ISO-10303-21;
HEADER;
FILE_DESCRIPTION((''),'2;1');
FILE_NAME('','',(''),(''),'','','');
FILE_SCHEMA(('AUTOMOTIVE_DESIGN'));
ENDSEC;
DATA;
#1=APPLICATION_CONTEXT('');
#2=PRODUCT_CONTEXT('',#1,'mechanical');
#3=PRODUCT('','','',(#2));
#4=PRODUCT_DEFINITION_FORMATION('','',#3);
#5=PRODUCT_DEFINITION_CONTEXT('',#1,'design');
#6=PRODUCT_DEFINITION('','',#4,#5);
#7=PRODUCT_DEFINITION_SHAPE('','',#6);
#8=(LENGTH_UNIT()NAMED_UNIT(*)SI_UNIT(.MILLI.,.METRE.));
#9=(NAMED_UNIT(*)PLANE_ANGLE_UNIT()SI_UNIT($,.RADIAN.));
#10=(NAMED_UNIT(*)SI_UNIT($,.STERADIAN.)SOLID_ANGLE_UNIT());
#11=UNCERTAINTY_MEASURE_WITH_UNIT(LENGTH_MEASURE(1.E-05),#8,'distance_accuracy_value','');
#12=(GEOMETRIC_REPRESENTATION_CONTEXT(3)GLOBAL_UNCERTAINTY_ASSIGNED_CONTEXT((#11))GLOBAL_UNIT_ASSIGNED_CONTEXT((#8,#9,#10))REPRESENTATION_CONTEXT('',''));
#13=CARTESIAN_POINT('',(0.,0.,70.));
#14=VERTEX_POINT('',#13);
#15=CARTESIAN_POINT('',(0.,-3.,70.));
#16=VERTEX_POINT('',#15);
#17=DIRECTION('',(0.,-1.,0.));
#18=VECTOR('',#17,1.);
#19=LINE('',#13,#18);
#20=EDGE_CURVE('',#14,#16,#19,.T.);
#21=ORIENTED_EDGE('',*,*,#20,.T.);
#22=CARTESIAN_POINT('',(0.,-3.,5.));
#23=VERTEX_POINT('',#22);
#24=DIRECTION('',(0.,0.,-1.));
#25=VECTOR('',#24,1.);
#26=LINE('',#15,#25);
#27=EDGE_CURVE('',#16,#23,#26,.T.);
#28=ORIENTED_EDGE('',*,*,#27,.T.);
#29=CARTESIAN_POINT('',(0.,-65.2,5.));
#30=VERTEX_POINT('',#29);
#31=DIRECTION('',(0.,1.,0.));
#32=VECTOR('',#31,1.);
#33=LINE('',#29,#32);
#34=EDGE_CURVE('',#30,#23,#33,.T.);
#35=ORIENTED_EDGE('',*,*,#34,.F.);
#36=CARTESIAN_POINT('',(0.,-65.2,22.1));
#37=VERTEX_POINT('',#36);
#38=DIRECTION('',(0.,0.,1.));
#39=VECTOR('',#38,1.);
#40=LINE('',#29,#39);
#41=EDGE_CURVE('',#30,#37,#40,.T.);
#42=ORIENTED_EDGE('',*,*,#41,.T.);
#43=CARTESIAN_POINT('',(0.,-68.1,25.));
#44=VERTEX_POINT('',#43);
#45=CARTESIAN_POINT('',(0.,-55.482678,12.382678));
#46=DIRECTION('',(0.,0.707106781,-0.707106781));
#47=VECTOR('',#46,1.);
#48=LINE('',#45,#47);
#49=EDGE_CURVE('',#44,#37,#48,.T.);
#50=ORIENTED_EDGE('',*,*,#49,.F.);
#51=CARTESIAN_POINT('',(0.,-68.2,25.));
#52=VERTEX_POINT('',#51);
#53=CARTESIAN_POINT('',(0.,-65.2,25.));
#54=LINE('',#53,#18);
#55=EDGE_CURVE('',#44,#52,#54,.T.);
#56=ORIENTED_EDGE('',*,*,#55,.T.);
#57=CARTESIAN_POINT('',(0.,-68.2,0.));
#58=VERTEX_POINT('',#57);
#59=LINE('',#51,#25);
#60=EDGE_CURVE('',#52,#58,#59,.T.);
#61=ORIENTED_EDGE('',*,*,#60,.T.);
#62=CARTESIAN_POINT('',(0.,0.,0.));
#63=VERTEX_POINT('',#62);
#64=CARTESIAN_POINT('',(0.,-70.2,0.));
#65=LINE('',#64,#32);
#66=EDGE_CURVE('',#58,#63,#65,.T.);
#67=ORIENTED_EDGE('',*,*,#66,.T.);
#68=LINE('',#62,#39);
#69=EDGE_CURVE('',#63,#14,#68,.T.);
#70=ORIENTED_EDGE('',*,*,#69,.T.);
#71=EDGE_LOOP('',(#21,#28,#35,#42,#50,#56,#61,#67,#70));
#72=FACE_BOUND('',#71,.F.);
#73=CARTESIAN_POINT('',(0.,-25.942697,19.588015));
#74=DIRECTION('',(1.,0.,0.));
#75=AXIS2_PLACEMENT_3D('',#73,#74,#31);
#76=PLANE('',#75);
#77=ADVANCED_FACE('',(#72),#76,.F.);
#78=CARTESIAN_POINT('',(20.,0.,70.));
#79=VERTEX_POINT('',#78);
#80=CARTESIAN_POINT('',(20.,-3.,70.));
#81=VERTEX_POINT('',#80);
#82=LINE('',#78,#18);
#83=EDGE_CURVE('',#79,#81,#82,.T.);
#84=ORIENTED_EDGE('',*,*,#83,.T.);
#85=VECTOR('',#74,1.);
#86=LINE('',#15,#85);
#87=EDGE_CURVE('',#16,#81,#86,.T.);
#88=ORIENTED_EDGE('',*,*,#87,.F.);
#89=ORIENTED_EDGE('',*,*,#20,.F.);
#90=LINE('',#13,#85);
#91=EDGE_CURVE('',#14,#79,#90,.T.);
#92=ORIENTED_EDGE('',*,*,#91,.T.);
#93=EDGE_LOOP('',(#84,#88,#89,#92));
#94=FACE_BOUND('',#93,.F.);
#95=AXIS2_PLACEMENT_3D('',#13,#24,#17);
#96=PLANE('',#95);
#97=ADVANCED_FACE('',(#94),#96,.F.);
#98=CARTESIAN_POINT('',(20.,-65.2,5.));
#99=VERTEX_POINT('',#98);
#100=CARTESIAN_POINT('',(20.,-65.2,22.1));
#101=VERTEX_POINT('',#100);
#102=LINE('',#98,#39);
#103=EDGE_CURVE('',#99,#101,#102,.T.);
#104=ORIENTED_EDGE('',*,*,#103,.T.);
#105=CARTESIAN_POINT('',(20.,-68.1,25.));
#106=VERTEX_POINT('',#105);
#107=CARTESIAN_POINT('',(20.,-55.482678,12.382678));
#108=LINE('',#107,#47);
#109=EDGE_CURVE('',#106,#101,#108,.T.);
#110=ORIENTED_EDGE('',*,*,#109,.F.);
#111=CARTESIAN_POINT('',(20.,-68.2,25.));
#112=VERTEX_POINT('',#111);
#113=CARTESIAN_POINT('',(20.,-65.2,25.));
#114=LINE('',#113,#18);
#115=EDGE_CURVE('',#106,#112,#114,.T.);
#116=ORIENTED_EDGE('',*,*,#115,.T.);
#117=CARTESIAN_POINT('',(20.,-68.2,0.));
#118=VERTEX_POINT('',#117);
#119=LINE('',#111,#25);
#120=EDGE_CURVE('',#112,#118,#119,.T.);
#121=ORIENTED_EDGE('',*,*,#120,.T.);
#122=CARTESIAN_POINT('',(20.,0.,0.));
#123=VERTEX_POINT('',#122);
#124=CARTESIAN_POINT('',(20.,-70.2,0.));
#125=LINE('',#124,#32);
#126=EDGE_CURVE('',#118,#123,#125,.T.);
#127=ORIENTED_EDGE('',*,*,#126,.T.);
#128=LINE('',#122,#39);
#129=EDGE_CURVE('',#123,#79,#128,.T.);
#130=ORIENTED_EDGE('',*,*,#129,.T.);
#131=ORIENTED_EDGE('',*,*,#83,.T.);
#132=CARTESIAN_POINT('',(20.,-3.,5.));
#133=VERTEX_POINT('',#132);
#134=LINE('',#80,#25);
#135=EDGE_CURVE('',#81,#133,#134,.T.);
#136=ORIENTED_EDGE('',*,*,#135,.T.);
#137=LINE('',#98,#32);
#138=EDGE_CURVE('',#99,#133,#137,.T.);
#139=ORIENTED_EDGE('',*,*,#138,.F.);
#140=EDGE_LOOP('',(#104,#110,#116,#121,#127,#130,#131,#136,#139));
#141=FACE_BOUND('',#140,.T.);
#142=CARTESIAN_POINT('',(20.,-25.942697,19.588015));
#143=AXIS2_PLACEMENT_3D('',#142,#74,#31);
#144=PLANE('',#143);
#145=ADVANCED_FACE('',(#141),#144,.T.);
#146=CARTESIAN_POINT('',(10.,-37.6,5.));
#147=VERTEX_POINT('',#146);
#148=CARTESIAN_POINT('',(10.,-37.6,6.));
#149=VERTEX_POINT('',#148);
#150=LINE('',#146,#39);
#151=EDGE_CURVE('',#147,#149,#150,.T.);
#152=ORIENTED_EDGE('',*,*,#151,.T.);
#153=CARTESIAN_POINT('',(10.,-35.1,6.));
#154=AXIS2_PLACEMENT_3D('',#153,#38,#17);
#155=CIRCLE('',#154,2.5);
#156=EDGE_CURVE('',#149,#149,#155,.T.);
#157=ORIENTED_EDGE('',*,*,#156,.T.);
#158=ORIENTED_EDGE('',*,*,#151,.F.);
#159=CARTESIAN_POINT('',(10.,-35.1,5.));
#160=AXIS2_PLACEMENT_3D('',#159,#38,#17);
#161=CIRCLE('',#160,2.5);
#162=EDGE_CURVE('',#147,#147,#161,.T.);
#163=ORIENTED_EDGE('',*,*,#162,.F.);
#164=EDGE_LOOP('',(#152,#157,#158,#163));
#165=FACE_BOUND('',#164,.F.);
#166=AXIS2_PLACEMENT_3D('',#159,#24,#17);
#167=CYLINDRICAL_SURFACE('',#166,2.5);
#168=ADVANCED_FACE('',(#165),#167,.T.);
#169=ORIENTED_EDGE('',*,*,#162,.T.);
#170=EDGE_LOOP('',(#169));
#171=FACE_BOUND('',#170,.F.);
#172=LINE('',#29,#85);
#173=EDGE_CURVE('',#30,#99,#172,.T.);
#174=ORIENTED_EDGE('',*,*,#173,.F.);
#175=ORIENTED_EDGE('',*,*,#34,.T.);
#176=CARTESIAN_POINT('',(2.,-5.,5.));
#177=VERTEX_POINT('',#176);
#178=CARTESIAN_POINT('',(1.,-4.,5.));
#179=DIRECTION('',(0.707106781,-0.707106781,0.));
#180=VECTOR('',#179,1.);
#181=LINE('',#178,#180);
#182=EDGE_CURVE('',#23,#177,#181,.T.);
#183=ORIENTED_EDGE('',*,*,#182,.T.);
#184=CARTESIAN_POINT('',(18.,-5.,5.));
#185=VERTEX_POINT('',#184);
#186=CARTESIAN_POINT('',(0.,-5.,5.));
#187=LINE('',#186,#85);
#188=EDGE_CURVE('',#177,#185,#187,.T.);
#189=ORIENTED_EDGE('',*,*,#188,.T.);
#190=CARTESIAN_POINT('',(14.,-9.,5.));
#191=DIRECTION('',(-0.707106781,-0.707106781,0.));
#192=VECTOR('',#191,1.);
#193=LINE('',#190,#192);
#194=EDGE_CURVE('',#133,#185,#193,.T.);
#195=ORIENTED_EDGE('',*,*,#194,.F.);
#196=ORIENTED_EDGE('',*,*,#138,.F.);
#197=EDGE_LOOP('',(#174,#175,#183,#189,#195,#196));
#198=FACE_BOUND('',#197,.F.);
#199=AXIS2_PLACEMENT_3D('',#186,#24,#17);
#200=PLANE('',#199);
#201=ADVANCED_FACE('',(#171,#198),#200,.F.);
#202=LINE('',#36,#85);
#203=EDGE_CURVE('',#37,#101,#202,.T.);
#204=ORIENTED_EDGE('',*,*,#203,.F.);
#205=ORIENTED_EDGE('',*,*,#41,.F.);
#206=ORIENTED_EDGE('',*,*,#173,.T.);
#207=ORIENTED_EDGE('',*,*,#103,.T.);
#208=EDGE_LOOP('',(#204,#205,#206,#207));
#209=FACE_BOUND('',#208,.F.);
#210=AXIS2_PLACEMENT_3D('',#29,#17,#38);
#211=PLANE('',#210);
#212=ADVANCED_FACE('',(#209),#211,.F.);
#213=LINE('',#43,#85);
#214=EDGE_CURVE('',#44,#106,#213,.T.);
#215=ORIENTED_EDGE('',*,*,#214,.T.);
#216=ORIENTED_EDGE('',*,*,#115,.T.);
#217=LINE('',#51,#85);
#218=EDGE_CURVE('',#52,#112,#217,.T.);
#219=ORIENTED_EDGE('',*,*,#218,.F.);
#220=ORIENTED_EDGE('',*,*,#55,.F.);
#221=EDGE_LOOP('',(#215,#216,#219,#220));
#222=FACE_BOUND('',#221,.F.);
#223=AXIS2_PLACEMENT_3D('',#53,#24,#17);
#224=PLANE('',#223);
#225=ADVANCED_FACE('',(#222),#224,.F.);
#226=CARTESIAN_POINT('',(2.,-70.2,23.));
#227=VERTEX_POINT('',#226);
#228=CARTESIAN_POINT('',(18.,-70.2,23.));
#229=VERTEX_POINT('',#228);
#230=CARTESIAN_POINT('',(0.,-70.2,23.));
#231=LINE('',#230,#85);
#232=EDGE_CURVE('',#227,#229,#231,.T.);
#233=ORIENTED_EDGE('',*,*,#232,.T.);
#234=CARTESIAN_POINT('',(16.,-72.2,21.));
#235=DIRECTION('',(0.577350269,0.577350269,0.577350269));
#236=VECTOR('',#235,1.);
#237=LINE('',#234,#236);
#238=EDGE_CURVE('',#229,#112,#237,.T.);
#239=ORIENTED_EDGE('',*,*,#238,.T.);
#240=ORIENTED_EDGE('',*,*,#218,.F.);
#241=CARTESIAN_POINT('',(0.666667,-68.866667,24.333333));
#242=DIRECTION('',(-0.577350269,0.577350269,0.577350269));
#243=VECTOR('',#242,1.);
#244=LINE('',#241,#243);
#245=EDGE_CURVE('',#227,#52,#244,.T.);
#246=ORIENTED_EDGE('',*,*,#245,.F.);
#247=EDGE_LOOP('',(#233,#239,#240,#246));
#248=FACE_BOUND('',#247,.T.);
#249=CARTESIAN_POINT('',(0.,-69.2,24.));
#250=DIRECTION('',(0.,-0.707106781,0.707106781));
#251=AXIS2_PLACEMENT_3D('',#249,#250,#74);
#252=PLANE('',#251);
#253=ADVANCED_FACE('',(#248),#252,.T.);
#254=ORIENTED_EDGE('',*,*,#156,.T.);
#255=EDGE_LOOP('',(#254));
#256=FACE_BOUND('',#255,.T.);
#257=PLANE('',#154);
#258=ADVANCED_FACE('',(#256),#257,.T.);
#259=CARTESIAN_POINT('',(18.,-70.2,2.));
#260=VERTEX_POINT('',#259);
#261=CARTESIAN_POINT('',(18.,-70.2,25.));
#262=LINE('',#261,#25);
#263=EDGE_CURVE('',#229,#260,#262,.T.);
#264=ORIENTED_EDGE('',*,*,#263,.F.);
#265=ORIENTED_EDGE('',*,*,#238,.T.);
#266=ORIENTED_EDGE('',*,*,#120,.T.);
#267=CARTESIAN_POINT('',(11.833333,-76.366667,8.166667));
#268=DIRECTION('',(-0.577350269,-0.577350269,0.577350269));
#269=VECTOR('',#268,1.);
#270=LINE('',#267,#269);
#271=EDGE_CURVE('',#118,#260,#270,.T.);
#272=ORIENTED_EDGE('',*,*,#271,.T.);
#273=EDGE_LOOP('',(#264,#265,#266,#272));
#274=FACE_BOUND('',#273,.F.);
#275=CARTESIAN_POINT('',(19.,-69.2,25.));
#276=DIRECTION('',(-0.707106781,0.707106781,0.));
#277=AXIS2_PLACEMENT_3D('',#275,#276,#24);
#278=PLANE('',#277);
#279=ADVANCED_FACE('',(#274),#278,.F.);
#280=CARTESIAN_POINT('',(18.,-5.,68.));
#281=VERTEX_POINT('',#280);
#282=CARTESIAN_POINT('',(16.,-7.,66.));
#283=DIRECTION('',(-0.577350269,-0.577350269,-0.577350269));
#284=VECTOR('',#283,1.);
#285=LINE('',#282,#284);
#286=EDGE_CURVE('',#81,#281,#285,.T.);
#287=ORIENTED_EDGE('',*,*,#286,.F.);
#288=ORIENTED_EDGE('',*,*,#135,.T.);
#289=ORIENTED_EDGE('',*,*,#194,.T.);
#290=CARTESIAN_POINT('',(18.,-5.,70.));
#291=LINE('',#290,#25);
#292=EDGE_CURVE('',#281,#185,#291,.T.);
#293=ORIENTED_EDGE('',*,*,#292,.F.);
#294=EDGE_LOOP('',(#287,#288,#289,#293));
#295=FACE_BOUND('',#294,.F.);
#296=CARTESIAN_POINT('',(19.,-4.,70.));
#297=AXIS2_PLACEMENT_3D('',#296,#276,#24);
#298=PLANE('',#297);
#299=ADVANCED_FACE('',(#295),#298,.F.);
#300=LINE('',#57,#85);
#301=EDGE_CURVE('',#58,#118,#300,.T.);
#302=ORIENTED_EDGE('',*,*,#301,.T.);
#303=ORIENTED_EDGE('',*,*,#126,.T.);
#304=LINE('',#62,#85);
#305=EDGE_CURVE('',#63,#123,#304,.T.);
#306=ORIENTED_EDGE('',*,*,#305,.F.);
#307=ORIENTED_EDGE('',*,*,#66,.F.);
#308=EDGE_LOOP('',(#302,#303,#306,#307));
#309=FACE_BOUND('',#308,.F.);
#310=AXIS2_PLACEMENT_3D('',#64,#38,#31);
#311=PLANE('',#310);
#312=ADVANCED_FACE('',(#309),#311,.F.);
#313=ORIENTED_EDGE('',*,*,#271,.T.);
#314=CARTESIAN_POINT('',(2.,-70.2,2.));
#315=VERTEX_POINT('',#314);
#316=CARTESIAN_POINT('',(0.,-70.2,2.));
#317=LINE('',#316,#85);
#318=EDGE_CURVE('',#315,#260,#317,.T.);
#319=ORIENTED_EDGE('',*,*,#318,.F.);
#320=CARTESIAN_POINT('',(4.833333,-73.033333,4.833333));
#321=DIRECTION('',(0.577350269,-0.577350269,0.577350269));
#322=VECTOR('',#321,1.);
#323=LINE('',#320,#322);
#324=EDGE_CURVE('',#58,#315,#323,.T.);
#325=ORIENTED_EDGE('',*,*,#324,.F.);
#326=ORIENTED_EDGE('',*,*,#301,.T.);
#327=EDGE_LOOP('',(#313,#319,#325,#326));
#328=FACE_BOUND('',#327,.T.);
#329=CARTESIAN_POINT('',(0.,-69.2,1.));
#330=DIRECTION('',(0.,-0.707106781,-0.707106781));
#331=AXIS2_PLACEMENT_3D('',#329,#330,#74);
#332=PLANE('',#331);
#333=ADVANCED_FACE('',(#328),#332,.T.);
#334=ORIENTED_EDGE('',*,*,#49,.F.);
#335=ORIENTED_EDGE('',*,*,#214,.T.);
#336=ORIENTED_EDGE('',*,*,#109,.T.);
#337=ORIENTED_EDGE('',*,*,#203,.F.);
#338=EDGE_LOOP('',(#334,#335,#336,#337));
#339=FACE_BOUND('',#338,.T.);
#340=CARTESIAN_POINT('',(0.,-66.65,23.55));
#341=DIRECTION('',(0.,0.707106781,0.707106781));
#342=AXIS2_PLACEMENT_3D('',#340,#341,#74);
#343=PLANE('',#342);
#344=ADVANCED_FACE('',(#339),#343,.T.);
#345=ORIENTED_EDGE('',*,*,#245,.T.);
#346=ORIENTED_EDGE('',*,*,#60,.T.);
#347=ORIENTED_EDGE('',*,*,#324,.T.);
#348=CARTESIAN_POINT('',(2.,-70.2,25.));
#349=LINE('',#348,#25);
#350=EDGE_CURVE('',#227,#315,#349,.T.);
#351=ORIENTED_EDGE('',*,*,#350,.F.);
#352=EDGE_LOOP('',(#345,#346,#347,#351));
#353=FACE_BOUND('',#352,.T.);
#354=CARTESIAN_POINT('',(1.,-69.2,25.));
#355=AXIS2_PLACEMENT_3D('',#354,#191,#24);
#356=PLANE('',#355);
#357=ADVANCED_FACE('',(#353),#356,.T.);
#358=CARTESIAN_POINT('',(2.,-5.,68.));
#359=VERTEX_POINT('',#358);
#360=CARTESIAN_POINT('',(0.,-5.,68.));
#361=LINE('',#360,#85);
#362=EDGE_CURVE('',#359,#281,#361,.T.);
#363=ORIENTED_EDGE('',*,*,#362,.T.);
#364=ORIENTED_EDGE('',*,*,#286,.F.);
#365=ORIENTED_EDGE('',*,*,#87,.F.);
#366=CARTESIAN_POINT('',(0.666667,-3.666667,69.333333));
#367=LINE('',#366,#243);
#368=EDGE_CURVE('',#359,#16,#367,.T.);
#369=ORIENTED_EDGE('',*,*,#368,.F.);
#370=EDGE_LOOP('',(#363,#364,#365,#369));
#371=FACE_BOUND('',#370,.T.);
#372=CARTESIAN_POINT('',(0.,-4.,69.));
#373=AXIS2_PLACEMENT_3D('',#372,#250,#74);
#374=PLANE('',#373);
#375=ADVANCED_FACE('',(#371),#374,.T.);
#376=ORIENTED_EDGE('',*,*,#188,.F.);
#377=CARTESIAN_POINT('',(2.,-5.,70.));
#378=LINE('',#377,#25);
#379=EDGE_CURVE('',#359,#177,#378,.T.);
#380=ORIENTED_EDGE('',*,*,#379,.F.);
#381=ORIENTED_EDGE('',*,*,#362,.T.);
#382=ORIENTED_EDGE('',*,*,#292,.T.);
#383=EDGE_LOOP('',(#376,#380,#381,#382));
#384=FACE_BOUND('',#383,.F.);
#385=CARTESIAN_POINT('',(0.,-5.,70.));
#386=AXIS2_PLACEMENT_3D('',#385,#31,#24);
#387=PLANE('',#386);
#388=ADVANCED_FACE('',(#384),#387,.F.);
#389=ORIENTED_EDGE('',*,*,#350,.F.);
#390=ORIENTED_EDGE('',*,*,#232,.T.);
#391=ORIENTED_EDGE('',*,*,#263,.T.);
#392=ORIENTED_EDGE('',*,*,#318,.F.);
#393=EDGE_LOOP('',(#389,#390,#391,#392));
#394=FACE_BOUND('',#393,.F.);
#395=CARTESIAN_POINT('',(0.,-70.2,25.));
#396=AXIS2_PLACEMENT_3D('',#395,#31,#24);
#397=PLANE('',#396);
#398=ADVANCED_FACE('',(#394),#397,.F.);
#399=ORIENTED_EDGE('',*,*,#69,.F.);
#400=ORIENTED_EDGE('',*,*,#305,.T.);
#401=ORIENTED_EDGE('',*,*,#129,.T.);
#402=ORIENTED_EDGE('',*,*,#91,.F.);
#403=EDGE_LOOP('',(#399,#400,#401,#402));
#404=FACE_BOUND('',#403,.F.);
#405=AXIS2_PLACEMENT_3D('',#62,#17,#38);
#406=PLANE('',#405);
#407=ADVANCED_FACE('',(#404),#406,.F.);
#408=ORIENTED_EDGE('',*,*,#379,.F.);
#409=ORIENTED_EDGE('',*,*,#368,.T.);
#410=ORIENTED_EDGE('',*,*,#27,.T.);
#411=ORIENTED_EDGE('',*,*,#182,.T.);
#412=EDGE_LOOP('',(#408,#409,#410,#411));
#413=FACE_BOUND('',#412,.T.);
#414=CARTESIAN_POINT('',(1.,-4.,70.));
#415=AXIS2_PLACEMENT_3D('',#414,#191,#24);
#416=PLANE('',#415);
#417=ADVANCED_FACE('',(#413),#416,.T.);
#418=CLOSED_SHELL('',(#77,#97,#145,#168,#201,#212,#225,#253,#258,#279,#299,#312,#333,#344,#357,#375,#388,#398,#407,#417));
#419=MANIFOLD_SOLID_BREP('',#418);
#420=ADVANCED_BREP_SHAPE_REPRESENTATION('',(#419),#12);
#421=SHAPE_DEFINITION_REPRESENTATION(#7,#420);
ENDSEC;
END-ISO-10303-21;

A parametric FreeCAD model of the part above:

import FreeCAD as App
import Part
import Sketcher
from FreeCAD import Vector


def edges_at(feature, points):
    """Names of the edges that pass closest to the given points."""
    edges = feature.Shape.Edges
    near = lambda p: min(range(len(edges)), key=lambda i: edges[i].distToShape(Part.Vertex(*p))[0])
    return sorted({f"Edge{near(p) + 1}" for p in points})

doc = App.newDocument("Part")
params = doc.addObject("Spreadsheet::Sheet", "Params")
for row, (alias, value) in enumerate([
    ("sketch1_width", "5 mm"),
    ("sketch1_height", "70 mm"),
    ("sketch1_height2", "65 mm"),
    ("sketch1_height3", "20 mm"),
    ("sketch1_width2", "60.2 mm"),
    ("pad1_length", "20 mm"),
    ("sketch2_diameter", "5 mm"),
    ("pad2_length", "1 mm"),
    ("chamfer_size", "2 mm"),
    ("chamfer2_size", "2 mm"),
    ("chamfer3_size", "2.9 mm"),
], start=1):
    params.set(f"A{row}", alias)
    params.set(f"B{row}", "=" + value)
    params.setAlias(f"B{row}", alias)

body = doc.addObject("PartDesign::Body", "Body")

sketch1 = doc.addObject("Sketcher::SketchObject", "Sketch")
body.addObject(sketch1)
sketch1.AttachmentSupport = (doc.YZ_Plane, [""])
sketch1.MapMode = "FlatFace"
sketch1.addGeometry([
    Part.LineSegment(Vector(0, 0, 0), Vector(0, 70, 0)),
    Part.LineSegment(Vector(0, 70, 0), Vector(-5, 70, 0)),
    Part.LineSegment(Vector(-5, 70, 0), Vector(-5, 5, 0)),
    Part.LineSegment(Vector(-5, 5, 0), Vector(-65, 5, 0)),
    Part.LineSegment(Vector(-65, 5, 0), Vector(-65, 25, 0)),
    Part.LineSegment(Vector(-65, 25, 0), Vector(-70, 25, 0)),
    Part.LineSegment(Vector(-70, 25, 0), Vector(-70, 0, 0)),
    Part.LineSegment(Vector(-70, 0, 0), Vector(0, 0, 0)),
], False)
sketch1.addConstraint([
    Sketcher.Constraint("Coincident", 0, 2, 1, 1),
    Sketcher.Constraint("Coincident", 1, 2, 2, 1),
    Sketcher.Constraint("Coincident", 2, 2, 3, 1),
    Sketcher.Constraint("Coincident", 3, 2, 4, 1),
    Sketcher.Constraint("Coincident", 4, 2, 5, 1),
    Sketcher.Constraint("Coincident", 5, 2, 6, 1),
    Sketcher.Constraint("Coincident", 6, 2, 7, 1),
    Sketcher.Constraint("Coincident", 7, 2, 0, 1),
    Sketcher.Constraint("Vertical", 0),
    Sketcher.Constraint("Horizontal", 1),
    Sketcher.Constraint("Vertical", 2),
    Sketcher.Constraint("Horizontal", 3),
    Sketcher.Constraint("Vertical", 4),
    Sketcher.Constraint("Horizontal", 5),
    Sketcher.Constraint("Vertical", 6),
    Sketcher.Constraint("Horizontal", 7),
    Sketcher.Constraint("Coincident", 7, 2, -1, 1),
    Sketcher.Constraint("Equal", 1, 5),
    Sketcher.Constraint("DistanceX", 1, 2, 1, 1, 5.0),
    Sketcher.Constraint("DistanceY", 0, 1, 0, 2, 70.0),
    Sketcher.Constraint("DistanceY", 2, 2, 2, 1, 65.0),
    Sketcher.Constraint("DistanceY", 4, 1, 4, 2, 20.0),
    Sketcher.Constraint("DistanceX", 3, 2, 3, 1, 60.2),
])
sketch1.setExpression("Constraints[18]", "Params.sketch1_width")
sketch1.setExpression("Constraints[19]", "Params.sketch1_height")
sketch1.setExpression("Constraints[20]", "Params.sketch1_height2")
sketch1.setExpression("Constraints[21]", "Params.sketch1_height3")
sketch1.setExpression("Constraints[22]", "Params.sketch1_width2")
pad1 = doc.addObject("PartDesign::Pad", "Pad")
body.addObject(pad1)
pad1.Profile = sketch1
pad1.setExpression("Length", "Params.pad1_length")

sketch2 = doc.addObject("Sketcher::SketchObject", "Sketch001")
body.addObject(sketch2)
sketch2.AttachmentSupport = (doc.XY_Plane, [""])
sketch2.MapMode = "FlatFace"
sketch2.AttachmentOffset = App.Placement(Vector(0, 0, 5), App.Rotation())
sketch2.addGeometry(Part.Circle(Vector(10, -35.1, 0), Vector(0, 0, 1), 2.5), False)
sketch2.addConstraint([
    Sketcher.Constraint("Diameter", 0, 5.0),
    Sketcher.Constraint("DistanceX", -1, 1, 0, 3, 10.0),
    Sketcher.Constraint("DistanceY", 0, 3, -1, 1, 35.1),
])
sketch2.setExpression("Constraints[0]", "Params.sketch2_diameter")
pad2 = doc.addObject("PartDesign::Pad", "Pad001")
body.addObject(pad2)
pad2.Profile = sketch2
pad2.setExpression("Length", "Params.pad2_length")
doc.recompute()

chamfer = doc.addObject("PartDesign::Chamfer", "Chamfer")
body.addObject(chamfer)
chamfer.Base = (pad2, edges_at(pad2, [
    (10, -70.2, 25),
    (20, -70.2, 12.5),
    (0, -70.2, 12.5),
    (10, -70.2, 0),
]))
chamfer.setExpression("Size", "Params.chamfer_size")
doc.recompute()

chamfer2 = doc.addObject("PartDesign::Chamfer", "Chamfer001")
body.addObject(chamfer2)
chamfer2.Base = (chamfer, edges_at(chamfer, [(20, -5, 37.5), (10, -5, 70), (0, -5, 37.5)]))
chamfer2.setExpression("Size", "Params.chamfer2_size")
doc.recompute()

chamfer3 = doc.addObject("PartDesign::Chamfer", "Chamfer002")
body.addObject(chamfer3)
chamfer3.Base = (chamfer2, edges_at(chamfer2, [(10, -65.2, 25)]))
chamfer3.setExpression("Size", "Params.chamfer3_size")

doc.recompute()
